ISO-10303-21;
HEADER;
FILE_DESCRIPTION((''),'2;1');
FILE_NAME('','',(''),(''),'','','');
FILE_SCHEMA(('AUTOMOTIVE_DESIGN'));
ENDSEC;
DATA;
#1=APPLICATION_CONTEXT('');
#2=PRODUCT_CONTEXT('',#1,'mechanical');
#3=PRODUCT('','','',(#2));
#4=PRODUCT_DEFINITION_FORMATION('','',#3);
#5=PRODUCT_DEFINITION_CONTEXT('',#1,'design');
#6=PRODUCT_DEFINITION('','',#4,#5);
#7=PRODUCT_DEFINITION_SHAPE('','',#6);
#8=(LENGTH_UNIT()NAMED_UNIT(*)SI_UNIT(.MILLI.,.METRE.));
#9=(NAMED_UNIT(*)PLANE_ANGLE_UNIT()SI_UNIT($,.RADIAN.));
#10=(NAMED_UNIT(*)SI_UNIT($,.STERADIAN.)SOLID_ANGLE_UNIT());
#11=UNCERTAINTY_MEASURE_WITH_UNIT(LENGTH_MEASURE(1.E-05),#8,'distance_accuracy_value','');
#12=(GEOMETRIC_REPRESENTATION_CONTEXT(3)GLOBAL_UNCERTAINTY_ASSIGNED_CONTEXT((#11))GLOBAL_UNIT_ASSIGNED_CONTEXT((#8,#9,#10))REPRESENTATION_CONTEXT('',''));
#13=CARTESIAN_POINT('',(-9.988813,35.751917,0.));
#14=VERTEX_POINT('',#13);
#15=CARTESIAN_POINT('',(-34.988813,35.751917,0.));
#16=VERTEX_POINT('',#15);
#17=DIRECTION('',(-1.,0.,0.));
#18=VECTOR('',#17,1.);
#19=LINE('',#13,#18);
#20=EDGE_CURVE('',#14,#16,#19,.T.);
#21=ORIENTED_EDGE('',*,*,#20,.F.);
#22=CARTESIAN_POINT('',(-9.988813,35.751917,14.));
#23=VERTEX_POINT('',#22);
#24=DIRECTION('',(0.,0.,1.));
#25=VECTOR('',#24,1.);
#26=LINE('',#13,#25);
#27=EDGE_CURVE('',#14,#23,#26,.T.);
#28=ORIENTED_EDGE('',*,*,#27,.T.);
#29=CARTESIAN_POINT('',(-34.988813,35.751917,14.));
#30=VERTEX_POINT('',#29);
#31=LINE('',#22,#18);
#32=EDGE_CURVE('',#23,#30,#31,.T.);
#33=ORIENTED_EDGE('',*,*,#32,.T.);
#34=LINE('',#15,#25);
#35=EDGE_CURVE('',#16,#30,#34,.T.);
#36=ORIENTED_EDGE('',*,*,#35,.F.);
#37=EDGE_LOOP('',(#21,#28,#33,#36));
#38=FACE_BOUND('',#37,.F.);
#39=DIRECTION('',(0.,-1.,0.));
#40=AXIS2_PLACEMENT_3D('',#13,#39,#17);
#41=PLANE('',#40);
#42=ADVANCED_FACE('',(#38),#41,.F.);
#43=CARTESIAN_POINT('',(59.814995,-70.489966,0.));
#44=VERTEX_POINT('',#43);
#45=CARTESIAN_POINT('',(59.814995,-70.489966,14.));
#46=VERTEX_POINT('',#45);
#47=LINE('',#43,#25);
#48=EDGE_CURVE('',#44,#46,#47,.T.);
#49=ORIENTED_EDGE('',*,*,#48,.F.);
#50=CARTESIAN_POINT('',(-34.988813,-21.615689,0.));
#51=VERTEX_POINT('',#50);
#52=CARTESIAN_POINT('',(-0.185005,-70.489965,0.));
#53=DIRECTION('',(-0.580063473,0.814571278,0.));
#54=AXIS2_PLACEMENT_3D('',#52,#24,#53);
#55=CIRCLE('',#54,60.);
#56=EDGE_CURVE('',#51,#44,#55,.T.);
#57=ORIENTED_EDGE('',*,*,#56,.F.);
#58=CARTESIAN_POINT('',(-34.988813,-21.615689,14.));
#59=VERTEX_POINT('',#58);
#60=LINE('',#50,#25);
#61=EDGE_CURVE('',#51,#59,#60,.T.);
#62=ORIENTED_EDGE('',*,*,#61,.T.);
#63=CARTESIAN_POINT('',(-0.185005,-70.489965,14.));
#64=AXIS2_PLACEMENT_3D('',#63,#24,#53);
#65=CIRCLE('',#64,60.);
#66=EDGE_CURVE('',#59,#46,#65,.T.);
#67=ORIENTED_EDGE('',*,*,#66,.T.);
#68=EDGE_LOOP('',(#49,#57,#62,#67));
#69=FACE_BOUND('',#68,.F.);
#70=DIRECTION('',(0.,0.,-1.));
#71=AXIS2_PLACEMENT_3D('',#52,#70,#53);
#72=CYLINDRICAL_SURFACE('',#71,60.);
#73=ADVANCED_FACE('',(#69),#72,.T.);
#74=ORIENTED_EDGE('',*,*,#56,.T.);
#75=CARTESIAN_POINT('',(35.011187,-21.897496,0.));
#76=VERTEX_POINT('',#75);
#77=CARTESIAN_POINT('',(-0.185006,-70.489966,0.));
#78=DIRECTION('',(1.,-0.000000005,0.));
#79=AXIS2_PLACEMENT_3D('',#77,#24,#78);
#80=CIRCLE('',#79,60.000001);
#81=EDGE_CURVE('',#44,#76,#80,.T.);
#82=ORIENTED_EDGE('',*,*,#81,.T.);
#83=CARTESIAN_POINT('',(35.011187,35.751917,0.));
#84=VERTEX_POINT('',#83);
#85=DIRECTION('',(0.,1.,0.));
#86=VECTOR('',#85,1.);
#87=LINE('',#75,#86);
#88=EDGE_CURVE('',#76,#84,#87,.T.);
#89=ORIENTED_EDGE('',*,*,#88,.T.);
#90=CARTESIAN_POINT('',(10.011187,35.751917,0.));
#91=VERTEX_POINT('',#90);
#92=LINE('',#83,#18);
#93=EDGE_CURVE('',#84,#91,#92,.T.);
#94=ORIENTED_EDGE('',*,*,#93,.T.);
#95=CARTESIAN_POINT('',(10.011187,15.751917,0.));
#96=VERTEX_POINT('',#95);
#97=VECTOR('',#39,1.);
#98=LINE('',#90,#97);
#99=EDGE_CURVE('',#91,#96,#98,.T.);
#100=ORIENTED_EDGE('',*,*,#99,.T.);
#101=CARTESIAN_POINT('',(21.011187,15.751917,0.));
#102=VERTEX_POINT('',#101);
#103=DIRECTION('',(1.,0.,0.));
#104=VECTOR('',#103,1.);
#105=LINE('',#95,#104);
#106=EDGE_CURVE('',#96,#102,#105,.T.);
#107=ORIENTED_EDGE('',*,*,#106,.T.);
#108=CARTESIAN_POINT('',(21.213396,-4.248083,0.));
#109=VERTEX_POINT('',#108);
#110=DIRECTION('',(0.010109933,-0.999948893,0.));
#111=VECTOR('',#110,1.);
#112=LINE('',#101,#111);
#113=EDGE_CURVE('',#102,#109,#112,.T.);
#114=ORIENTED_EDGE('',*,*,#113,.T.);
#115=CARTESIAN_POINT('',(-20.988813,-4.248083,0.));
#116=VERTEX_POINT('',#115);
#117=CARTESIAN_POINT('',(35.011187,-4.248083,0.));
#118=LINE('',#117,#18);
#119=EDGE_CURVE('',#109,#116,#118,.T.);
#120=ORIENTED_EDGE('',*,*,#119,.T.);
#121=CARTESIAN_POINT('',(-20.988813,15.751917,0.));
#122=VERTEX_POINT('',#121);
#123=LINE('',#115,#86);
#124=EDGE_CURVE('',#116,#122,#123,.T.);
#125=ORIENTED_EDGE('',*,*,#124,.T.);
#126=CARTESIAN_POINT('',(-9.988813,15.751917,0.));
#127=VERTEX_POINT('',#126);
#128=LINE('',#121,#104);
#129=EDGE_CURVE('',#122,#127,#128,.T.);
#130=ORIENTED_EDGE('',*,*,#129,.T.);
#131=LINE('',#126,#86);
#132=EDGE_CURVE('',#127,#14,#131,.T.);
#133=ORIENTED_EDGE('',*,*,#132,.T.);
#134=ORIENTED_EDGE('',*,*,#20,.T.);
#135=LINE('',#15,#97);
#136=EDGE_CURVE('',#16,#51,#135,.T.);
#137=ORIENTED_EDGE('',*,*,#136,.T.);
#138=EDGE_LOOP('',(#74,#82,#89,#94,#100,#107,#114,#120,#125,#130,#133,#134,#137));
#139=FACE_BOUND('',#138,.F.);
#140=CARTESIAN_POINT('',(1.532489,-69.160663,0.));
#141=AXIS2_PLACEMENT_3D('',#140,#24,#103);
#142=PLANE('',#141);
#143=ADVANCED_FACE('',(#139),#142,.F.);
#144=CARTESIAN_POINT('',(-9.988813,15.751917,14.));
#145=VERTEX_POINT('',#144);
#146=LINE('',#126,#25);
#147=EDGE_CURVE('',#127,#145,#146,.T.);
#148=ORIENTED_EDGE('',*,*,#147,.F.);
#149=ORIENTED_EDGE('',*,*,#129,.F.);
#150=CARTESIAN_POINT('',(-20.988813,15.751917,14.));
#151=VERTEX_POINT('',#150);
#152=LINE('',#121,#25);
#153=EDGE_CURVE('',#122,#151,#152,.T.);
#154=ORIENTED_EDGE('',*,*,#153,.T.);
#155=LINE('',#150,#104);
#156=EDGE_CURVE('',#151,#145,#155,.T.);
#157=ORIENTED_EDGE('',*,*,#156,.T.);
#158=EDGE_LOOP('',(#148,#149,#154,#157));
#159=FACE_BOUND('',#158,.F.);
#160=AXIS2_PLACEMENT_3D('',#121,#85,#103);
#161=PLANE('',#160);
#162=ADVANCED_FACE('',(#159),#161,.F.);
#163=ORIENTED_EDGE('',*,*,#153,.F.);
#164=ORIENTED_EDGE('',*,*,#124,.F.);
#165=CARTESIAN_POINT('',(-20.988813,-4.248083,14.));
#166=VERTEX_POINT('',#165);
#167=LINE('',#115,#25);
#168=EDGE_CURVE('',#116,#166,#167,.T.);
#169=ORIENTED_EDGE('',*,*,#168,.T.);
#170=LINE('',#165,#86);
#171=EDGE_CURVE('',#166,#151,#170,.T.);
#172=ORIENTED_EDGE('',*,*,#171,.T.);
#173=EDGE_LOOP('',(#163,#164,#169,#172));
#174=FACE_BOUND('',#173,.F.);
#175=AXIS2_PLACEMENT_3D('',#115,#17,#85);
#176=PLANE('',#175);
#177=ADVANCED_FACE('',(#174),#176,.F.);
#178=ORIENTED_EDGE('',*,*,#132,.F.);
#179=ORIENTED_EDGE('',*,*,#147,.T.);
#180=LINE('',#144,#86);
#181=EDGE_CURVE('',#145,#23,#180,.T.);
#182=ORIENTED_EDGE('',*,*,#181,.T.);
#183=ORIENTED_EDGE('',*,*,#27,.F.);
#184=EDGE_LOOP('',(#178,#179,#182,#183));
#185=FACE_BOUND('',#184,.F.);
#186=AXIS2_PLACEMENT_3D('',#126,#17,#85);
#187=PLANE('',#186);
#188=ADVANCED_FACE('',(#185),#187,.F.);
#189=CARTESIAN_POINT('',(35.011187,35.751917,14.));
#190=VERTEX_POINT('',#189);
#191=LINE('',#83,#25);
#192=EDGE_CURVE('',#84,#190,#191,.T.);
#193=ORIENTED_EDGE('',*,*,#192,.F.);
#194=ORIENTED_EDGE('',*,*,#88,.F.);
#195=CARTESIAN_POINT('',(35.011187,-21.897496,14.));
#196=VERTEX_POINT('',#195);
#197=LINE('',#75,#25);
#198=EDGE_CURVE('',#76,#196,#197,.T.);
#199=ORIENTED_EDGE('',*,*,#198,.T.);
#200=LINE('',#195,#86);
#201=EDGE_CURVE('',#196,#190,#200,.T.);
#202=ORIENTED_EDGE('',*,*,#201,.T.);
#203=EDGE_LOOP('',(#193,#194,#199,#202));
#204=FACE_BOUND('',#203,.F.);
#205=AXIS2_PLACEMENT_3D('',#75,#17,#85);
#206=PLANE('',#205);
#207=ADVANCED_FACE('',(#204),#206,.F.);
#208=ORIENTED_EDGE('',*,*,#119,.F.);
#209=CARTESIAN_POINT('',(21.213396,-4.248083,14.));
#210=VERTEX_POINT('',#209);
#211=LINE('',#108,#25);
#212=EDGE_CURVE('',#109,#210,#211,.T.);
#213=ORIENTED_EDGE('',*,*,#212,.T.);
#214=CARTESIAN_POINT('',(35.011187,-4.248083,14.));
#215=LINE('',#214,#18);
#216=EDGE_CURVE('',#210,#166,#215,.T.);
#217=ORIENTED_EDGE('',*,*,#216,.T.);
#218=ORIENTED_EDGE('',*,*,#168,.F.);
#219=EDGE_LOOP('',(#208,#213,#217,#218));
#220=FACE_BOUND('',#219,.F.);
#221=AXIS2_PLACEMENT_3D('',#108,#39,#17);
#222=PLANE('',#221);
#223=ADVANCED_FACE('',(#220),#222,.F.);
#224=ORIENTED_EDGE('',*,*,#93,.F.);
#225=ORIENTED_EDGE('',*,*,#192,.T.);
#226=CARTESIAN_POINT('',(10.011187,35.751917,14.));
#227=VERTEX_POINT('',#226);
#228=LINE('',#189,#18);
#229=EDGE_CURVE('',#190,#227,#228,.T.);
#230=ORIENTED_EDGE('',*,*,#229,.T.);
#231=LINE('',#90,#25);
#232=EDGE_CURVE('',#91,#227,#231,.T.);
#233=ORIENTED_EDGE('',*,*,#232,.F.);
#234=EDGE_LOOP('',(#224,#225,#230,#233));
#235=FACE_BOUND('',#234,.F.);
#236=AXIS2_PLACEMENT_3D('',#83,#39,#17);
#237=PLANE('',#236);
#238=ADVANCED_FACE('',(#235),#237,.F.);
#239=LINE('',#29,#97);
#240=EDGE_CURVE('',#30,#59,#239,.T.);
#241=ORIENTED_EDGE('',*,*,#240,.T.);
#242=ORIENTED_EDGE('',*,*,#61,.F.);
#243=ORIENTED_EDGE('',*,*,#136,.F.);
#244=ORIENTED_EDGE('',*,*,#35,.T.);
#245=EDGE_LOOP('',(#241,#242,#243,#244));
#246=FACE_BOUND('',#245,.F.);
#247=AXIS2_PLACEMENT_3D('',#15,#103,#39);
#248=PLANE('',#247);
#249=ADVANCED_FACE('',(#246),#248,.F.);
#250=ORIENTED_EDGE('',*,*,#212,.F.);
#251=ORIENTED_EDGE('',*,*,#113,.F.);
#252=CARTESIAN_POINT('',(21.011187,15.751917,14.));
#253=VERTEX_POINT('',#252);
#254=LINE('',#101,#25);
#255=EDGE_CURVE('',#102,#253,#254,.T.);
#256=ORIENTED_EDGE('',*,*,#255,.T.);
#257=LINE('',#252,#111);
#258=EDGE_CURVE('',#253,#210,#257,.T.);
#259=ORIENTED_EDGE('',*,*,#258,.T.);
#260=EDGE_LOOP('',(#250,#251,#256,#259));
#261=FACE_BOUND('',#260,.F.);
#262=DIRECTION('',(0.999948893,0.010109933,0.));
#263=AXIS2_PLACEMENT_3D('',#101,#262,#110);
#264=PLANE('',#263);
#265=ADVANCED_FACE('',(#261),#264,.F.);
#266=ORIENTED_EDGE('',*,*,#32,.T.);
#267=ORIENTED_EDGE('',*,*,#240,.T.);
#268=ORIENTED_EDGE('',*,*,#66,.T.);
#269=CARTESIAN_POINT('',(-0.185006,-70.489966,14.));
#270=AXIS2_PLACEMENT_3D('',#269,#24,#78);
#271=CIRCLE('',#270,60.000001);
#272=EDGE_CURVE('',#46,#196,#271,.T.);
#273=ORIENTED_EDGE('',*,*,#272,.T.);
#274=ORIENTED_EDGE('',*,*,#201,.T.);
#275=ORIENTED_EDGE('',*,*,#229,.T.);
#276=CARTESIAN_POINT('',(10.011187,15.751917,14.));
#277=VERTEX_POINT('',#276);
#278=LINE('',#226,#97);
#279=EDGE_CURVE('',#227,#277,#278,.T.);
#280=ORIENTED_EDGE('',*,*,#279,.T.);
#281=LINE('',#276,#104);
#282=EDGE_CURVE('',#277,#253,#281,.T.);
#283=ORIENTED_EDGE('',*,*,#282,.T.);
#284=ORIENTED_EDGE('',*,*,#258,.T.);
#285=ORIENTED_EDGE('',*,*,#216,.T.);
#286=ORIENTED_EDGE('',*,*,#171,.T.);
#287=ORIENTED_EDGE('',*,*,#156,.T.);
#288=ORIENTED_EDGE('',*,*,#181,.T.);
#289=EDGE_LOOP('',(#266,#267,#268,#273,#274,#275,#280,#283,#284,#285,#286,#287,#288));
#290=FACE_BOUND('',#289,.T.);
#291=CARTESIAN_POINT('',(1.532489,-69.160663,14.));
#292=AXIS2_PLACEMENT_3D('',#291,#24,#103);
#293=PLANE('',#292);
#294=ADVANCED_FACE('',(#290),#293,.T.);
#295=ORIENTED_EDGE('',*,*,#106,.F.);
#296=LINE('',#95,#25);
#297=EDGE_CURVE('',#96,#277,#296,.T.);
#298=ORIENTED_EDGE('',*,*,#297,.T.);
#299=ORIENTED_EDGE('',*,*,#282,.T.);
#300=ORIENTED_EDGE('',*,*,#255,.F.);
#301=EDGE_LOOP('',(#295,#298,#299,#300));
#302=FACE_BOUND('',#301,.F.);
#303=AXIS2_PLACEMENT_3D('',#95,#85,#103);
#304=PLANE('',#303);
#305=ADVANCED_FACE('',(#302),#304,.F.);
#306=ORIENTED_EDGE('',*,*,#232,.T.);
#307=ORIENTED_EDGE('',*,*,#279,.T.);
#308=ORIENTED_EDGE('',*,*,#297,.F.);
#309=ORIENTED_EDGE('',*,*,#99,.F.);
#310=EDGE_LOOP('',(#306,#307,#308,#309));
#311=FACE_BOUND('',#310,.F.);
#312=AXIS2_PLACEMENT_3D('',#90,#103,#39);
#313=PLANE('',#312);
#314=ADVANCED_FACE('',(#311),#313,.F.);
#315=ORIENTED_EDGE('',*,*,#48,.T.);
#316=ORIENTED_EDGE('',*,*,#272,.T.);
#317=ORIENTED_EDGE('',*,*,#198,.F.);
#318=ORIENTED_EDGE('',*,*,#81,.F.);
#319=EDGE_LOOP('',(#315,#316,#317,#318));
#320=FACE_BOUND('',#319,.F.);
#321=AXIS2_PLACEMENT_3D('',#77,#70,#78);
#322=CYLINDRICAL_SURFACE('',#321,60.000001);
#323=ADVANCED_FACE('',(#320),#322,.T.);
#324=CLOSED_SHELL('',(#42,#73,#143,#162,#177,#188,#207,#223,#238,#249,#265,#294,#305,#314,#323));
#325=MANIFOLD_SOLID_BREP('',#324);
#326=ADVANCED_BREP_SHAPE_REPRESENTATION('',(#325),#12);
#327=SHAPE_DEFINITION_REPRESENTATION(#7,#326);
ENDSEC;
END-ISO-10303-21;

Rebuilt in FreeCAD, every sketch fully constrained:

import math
import FreeCAD as App
import Part
import Sketcher

doc = App.newDocument("Part")
body = doc.addObject("PartDesign::Body", "Body")

# Sketch on XY plane
sketch1 = body.newObject("Sketcher::SketchObject", "Sketch")
sketch1.AttachmentSupport = (doc.getObject("XY_Plane"), [""])
sketch1.MapMode = "FlatFace"
sketch1.addGeometry(Part.ArcOfCircle(Part.Circle(App.Vector(0, -70, 0), App.Vector(0, 0, 1), 60), math.radians(125), math.radians(360)), False)
sketch1.addGeometry(Part.ArcOfCircle(Part.Circle(App.Vector(0, -70, 0), App.Vector(0, 0, 1), 60), math.radians(0), math.radians(54)), False)
sketch1.addGeometry(Part.LineSegment(App.Vector(35, -22, 0), App.Vector(35, 36, 0)), False)
sketch1.addGeometry(Part.LineSegment(App.Vector(35, 36, 0), App.Vector(10, 36, 0)), False)
sketch1.addGeometry(Part.LineSegment(App.Vector(10, 36, 0), App.Vector(10, 16, 0)), False)
sketch1.addGeometry(Part.LineSegment(App.Vector(10, 16, 0), App.Vector(21, 16, 0)), False)
sketch1.addGeometry(Part.LineSegment(App.Vector(21, 16, 0), App.Vector(21, -4, 0)), False)
sketch1.addGeometry(Part.LineSegment(App.Vector(21, -4, 0), App.Vector(-21, -4, 0)), False)
sketch1.addGeometry(Part.LineSegment(App.Vector(-21, -4, 0), App.Vector(-21, 16, 0)), False)
sketch1.addGeometry(Part.LineSegment(App.Vector(-21, 16, 0), App.Vector(-10, 16, 0)), False)
sketch1.addGeometry(Part.LineSegment(App.Vector(-10, 16, 0), App.Vector(-10, 36, 0)), False)
sketch1.addGeometry(Part.LineSegment(App.Vector(-10, 36, 0), App.Vector(-35, 36, 0)), False)
sketch1.addGeometry(Part.LineSegment(App.Vector(-35, 36, 0), App.Vector(-35, -22, 0)), False)
sketch1.addConstraint(Sketcher.Constraint("Tangent", 0, 2, 1, 1))
sketch1.addConstraint(Sketcher.Constraint("Coincident", 1, 2, 2, 1))
sketch1.addConstraint(Sketcher.Constraint("Coincident", 2, 2, 3, 1))
sketch1.addConstraint(Sketcher.Constraint("Coincident", 3, 2, 4, 1))
sketch1.addConstraint(Sketcher.Constraint("Coincident", 4, 2, 5, 1))
sketch1.addConstraint(Sketcher.Constraint("Coincident", 5, 2, 6, 1))
sketch1.addConstraint(Sketcher.Constraint("Coincident", 6, 2, 7, 1))
sketch1.addConstraint(Sketcher.Constraint("Coincident", 7, 2, 8, 1))
sketch1.addConstraint(Sketcher.Constraint("Coincident", 8, 2, 9, 1))
sketch1.addConstraint(Sketcher.Constraint("Coincident", 9, 2, 10, 1))
sketch1.addConstraint(Sketcher.Constraint("Coincident", 10, 2, 11, 1))
sketch1.addConstraint(Sketcher.Constraint("Coincident", 11, 2, 12, 1))
sketch1.addConstraint(Sketcher.Constraint("Coincident", 12, 2, 0, 1))
sketch1.addConstraint(Sketcher.Constraint("Vertical", 2))
sketch1.addConstraint(Sketcher.Constraint("Horizontal", 3))
sketch1.addConstraint(Sketcher.Constraint("Vertical", 4))
sketch1.addConstraint(Sketcher.Constraint("Horizontal", 5))
sketch1.addConstraint(Sketcher.Constraint("Horizontal", 7))
sketch1.addConstraint(Sketcher.Constraint("Vertical", 8))
sketch1.addConstraint(Sketcher.Constraint("Horizontal", 9))
sketch1.addConstraint(Sketcher.Constraint("Vertical", 10))
sketch1.addConstraint(Sketcher.Constraint("Horizontal", 11))
sketch1.addConstraint(Sketcher.Constraint("Vertical", 12))
sketch1.addConstraint(Sketcher.Constraint("Equal", 0, 1))
sketch1.addConstraint(Sketcher.Constraint("Horizontal", 1, 3, 0, 2))
sketch1.addConstraint(Sketcher.Constraint("Horizontal", 5, 2, 8, 2))
sketch1.addConstraint(Sketcher.Constraint("Horizontal", 3, 2, 10, 2))
sketch1.addConstraint(Sketcher.Constraint("Equal", 5, 9))
sketch1.addConstraint(Sketcher.Constraint("Equal", 3, 11))
sketch1.addConstraint(Sketcher.Constraint("Equal", 4, 8))
sketch1.addConstraint(Sketcher.Constraint("Radius", 0, 60.0))
sketch1.addConstraint(Sketcher.Constraint("DistanceX", 3, 2, 3, 1, 25.0))
sketch1.addConstraint(Sketcher.Constraint("DistanceX", 5, 1, 5, 2, 11.0))
sketch1.addConstraint(Sketcher.Constraint("DistanceY", 4, 2, 4, 1, 20.0))
sketch1.addConstraint(Sketcher.Constraint("DistanceX", 7, 2, 4, 2, 31.0))
sketch1.addConstraint(Sketcher.Constraint("DistanceX", 7, 2, 7, 1, 42.202209))
sketch1.addConstraint(Sketcher.Constraint("DistanceY", 2, 1, 2, 2, 57.649413))
sketch1.addConstraint(Sketcher.Constraint("DistanceY", 12, 2, 12, 1, 57.367606))
sketch1.addConstraint(Sketcher.Constraint("DistanceY", 12, 2, -1, 1, 21.615689))
sketch1.addConstraint(Sketcher.Constraint("DistanceX", 0, 3, -1, 1, 0.185005))
pad1 = body.newObject("PartDesign::Pad", "Pad")
pad1.Profile = sketch1
pad1.Length = 14

doc.recompute()
